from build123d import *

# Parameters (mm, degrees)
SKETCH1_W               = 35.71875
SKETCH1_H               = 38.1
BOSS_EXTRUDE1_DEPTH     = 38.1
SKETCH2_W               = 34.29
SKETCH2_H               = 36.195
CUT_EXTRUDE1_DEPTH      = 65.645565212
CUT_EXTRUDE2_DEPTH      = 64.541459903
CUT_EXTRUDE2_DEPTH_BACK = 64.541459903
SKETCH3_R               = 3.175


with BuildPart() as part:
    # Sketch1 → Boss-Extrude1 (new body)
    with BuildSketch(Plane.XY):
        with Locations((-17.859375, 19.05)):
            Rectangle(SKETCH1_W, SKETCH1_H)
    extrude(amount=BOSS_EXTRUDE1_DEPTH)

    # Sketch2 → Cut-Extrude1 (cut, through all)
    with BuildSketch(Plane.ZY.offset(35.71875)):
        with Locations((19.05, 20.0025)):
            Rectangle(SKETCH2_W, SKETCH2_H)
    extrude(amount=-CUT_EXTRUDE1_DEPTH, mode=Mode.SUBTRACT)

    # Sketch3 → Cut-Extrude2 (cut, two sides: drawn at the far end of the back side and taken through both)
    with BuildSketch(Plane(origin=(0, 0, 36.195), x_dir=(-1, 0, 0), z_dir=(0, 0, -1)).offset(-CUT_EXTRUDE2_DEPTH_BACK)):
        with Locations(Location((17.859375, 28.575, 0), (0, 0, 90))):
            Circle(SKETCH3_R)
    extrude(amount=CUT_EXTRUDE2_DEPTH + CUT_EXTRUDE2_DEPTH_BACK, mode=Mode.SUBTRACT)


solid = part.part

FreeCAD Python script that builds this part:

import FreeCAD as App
import Part
import Sketcher
from FreeCAD import Vector
Q = App.Units.Quantity

doc = App.newDocument("Part")
body = doc.addObject("PartDesign::Body", "Body")

# Sketch on XY plane
sketch1 = body.newObject("Sketcher::SketchObject", "Sketch")
sketch1.AttachmentSupport = (doc.getObject("XY_Plane"), [""])
sketch1.MapMode = "FlatFace"
sketch1.addGeometry(Part.LineSegment(Vector(-36, 38, 0), Vector(-36, 0, 0)), False)
sketch1.addGeometry(Part.LineSegment(Vector(-36, 0, 0), Vector(0, 0, 0)), False)
sketch1.addGeometry(Part.LineSegment(Vector(0, 0, 0), Vector(0, 38, 0)), False)
sketch1.addGeometry(Part.LineSegment(Vector(0, 38, 0), Vector(-36, 38, 0)), False)
sketch1.addConstraint(Sketcher.Constraint("Coincident", 0, 2, 1, 1))
sketch1.addConstraint(Sketcher.Constraint("Coincident", 1, 2, 2, 1))
sketch1.addConstraint(Sketcher.Constraint("Coincident", 2, 2, 3, 1))
sketch1.addConstraint(Sketcher.Constraint("Coincident", 3, 2, 0, 1))
sketch1.addConstraint(Sketcher.Constraint("Vertical", 0))
sketch1.addConstraint(Sketcher.Constraint("Horizontal", 1))
sketch1.addConstraint(Sketcher.Constraint("Vertical", 2))
sketch1.addConstraint(Sketcher.Constraint("Horizontal", 3))
sketch1.addConstraint(Sketcher.Constraint("Coincident", 1, 2, -1, 1))
sketch1.addConstraint(Sketcher.Constraint("DistanceY", 0, 2, 0, 1, Q("1.5 in")))
sketch1.addConstraint(Sketcher.Constraint("DistanceX", 1, 1, 1, 2, Q("1.40625 in")))
pad1 = body.newObject("PartDesign::Pad", "Pad")
pad1.Profile = sketch1
pad1.Length = Q("1.5 in")

# Sketch on YZ plane
sketch2 = body.newObject("Sketcher::SketchObject", "Sketch001")
sketch2.AttachmentSupport = (doc.getObject("YZ_Plane"), [""])
sketch2.MapMode = "FlatFace"
sketch2.AttachmentOffset = App.Placement(Vector(0, 0, -1.40625 * 25.4), App.Rotation())
sketch2.addGeometry(Part.LineSegment(Vector(38, 2, 0), Vector(2, 2, 0)), False)
sketch2.addGeometry(Part.LineSegment(Vector(2, 2, 0), Vector(2, 36, 0)), False)
sketch2.addGeometry(Part.LineSegment(Vector(2, 36, 0), Vector(38, 36, 0)), False)
sketch2.addGeometry(Part.LineSegment(Vector(38, 36, 0), Vector(38, 2, 0)), False)
sketch2.addConstraint(Sketcher.Constraint("Coincident", 0, 2, 1, 1))
sketch2.addConstraint(Sketcher.Constraint("Coincident", 1, 2, 2, 1))
sketch2.addConstraint(Sketcher.Constraint("Coincident", 2, 2, 3, 1))
sketch2.addConstraint(Sketcher.Constraint("Coincident", 3, 2, 0, 1))
sketch2.addConstraint(Sketcher.Constraint("Horizontal", 0))
sketch2.addConstraint(Sketcher.Constraint("Vertical", 1))
sketch2.addConstraint(Sketcher.Constraint("Horizontal", 2))
sketch2.addConstraint(Sketcher.Constraint("Vertical", 3))
sketch2.addConstraint(Sketcher.Constraint("DistanceY", 1, 1, 1, 2, Q("1.35 in")))
sketch2.addConstraint(Sketcher.Constraint("DistanceX", -1, 1, 2, 2, Q("1.5 in")))
sketch2.addConstraint(Sketcher.Constraint("DistanceX", 0, 2, 0, 1, Q("1.425 in")))
sketch2.addConstraint(Sketcher.Constraint("DistanceY", -1, 1, 0, 2, Q("0.075 in")))
pocket1 = body.newObject("PartDesign::Pocket", "Pocket")
pocket1.Profile = sketch2
pocket1.Type = "ThroughAll"
pocket1.Reversed = True

# Sketch on XY plane
sketch3 = body.newObject("Sketcher::SketchObject", "Sketch002")
sketch3.AttachmentSupport = (doc.getObject("XY_Plane"), [""])
sketch3.MapMode = "FlatFace"
sketch3.AttachmentOffset = App.Placement(Vector(0, 0, 1.425 * 25.4), App.Rotation())
sketch3.addGeometry(Part.Circle(Vector(-17.9, 28.6, 0), Vector(0, 0, 1), 3.2), False)
sketch3.addConstraint(Sketcher.Constraint("Diameter", 0, Q("0.25 in")))
sketch3.addConstraint(Sketcher.Constraint("DistanceX", 0, 3, -1, 1, Q("0.703125 in")))
sketch3.addConstraint(Sketcher.Constraint("DistanceY", -1, 1, 0, 3, Q("1.125 in")))
pocket2 = body.newObject("PartDesign::Pocket", "Pocket001")
pocket2.Profile = sketch3
pocket2.Type = "ThroughAll"
pocket2.Midplane = True

doc.recompute()
